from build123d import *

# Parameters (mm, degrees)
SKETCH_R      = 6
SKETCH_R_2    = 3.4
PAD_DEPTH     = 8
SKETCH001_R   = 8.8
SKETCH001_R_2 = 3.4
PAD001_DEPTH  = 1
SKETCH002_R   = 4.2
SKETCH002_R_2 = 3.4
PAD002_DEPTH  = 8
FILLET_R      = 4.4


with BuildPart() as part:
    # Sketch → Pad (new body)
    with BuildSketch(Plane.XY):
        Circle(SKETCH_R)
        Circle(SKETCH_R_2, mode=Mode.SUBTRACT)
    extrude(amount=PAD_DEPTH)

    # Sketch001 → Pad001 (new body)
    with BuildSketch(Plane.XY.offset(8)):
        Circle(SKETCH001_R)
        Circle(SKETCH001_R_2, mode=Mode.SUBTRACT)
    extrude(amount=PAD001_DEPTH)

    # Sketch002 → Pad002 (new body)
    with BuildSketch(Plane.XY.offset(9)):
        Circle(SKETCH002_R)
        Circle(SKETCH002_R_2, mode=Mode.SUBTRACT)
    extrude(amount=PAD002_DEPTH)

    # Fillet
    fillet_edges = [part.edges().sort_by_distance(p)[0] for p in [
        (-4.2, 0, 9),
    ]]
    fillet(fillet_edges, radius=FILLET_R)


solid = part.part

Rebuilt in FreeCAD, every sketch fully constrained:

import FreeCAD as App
import Part
import Sketcher
from FreeCAD import Vector


def edges_at(feature, points):
    """Names of the edges that pass closest to the given points."""
    edges = feature.Shape.Edges
    near = lambda p: min(range(len(edges)), key=lambda i: edges[i].distToShape(Part.Vertex(*p))[0])
    return sorted({f"Edge{near(p) + 1}" for p in points})

doc = App.newDocument("Part")
params = doc.addObject("Spreadsheet::Sheet", "Params")
for row, (alias, value) in enumerate([
    ("sketch1_diameter", "12 mm"),
    ("sketch1_diameter2", "6.8 mm"),
    ("pad1_length", "8 mm"),
    ("sketch2_diameter", "17.6 mm"),
    ("sketch2_diameter2", "6.8 mm"),
    ("pad2_length", "1 mm"),
    ("sketch3_diameter", "8.4 mm"),
    ("sketch3_diameter2", "6.8 mm"),
    ("pad3_length", "8 mm"),
    ("fillet_radius", "4.4 mm"),
], start=1):
    params.set(f"A{row}", alias)
    params.set(f"B{row}", "=" + value)
    params.setAlias(f"B{row}", alias)

body = doc.addObject("PartDesign::Body", "Body")

# Sketch on XY plane
sketch1 = body.newObject("Sketcher::SketchObject", "Sketch")
sketch1.AttachmentSupport = (doc.getObject("XY_Plane"), [""])
sketch1.MapMode = "FlatFace"
sketch1.addGeometry([
    Part.Circle(Vector(0, 0, 0), Vector(0, 0, 1), 6),
    Part.Circle(Vector(0, 0, 0), Vector(0, 0, 1), 3.4),
], False)
sketch1.addConstraint([
    Sketcher.Constraint("Coincident", 0, 3, -1, 1),
    Sketcher.Constraint("Coincident", 1, 3, -1, 1),
    Sketcher.Constraint("Diameter", 0, 12.0),
    Sketcher.Constraint("Diameter", 1, 6.8),
])
sketch1.setExpression("Constraints[2]", "Params.sketch1_diameter")
sketch1.setExpression("Constraints[3]", "Params.sketch1_diameter2")
pad1 = body.newObject("PartDesign::Pad", "Pad")
pad1.Profile = sketch1
pad1.setExpression("Length", "Params.pad1_length")

# Sketch on XY plane
sketch2 = body.newObject("Sketcher::SketchObject", "Sketch001")
sketch2.AttachmentSupport = (doc.getObject("XY_Plane"), [""])
sketch2.MapMode = "FlatFace"
sketch2.AttachmentOffset = App.Placement(Vector(0, 0, 8), App.Rotation())
sketch2.addGeometry([
    Part.Circle(Vector(0, 0, 0), Vector(0, 0, 1), 8.8),
    Part.Circle(Vector(0, 0, 0), Vector(0, 0, 1), 3.4),
], False)
sketch2.addConstraint([
    Sketcher.Constraint("Coincident", 0, 3, -1, 1),
    Sketcher.Constraint("Coincident", 1, 3, -1, 1),
    Sketcher.Constraint("Diameter", 0, 17.6),
    Sketcher.Constraint("Diameter", 1, 6.8),
])
sketch2.setExpression("Constraints[2]", "Params.sketch2_diameter")
sketch2.setExpression("Constraints[3]", "Params.sketch2_diameter2")
pad2 = body.newObject("PartDesign::Pad", "Pad001")
pad2.Profile = sketch2
pad2.setExpression("Length", "Params.pad2_length")

# Sketch on XY plane
sketch3 = body.newObject("Sketcher::SketchObject", "Sketch002")
sketch3.AttachmentSupport = (doc.getObject("XY_Plane"), [""])
sketch3.MapMode = "FlatFace"
sketch3.AttachmentOffset = App.Placement(Vector(0, 0, 9), App.Rotation())
sketch3.addGeometry([
    Part.Circle(Vector(0, 0, 0), Vector(0, 0, 1), 4.2),
    Part.Circle(Vector(0, 0, 0), Vector(0, 0, 1), 3.4),
], False)
sketch3.addConstraint([
    Sketcher.Constraint("Coincident", 0, 3, -1, 1),
    Sketcher.Constraint("Coincident", 1, 3, -1, 1),
    Sketcher.Constraint("Diameter", 0, 8.4),
    Sketcher.Constraint("Diameter", 1, 6.8),
])
sketch3.setExpression("Constraints[2]", "Params.sketch3_diameter")
sketch3.setExpression("Constraints[3]", "Params.sketch3_diameter2")
pad3 = body.newObject("PartDesign::Pad", "Pad002")
pad3.Profile = sketch3
pad3.setExpression("Length", "Params.pad3_length")
doc.recompute()

fillet = body.newObject("PartDesign::Fillet", "Fillet")
fillet.Base = (pad3, edges_at(pad3, [(-4.2, 0, 9)]))
fillet.setExpression("Radius", "Params.fillet_radius")

doc.recompute()
